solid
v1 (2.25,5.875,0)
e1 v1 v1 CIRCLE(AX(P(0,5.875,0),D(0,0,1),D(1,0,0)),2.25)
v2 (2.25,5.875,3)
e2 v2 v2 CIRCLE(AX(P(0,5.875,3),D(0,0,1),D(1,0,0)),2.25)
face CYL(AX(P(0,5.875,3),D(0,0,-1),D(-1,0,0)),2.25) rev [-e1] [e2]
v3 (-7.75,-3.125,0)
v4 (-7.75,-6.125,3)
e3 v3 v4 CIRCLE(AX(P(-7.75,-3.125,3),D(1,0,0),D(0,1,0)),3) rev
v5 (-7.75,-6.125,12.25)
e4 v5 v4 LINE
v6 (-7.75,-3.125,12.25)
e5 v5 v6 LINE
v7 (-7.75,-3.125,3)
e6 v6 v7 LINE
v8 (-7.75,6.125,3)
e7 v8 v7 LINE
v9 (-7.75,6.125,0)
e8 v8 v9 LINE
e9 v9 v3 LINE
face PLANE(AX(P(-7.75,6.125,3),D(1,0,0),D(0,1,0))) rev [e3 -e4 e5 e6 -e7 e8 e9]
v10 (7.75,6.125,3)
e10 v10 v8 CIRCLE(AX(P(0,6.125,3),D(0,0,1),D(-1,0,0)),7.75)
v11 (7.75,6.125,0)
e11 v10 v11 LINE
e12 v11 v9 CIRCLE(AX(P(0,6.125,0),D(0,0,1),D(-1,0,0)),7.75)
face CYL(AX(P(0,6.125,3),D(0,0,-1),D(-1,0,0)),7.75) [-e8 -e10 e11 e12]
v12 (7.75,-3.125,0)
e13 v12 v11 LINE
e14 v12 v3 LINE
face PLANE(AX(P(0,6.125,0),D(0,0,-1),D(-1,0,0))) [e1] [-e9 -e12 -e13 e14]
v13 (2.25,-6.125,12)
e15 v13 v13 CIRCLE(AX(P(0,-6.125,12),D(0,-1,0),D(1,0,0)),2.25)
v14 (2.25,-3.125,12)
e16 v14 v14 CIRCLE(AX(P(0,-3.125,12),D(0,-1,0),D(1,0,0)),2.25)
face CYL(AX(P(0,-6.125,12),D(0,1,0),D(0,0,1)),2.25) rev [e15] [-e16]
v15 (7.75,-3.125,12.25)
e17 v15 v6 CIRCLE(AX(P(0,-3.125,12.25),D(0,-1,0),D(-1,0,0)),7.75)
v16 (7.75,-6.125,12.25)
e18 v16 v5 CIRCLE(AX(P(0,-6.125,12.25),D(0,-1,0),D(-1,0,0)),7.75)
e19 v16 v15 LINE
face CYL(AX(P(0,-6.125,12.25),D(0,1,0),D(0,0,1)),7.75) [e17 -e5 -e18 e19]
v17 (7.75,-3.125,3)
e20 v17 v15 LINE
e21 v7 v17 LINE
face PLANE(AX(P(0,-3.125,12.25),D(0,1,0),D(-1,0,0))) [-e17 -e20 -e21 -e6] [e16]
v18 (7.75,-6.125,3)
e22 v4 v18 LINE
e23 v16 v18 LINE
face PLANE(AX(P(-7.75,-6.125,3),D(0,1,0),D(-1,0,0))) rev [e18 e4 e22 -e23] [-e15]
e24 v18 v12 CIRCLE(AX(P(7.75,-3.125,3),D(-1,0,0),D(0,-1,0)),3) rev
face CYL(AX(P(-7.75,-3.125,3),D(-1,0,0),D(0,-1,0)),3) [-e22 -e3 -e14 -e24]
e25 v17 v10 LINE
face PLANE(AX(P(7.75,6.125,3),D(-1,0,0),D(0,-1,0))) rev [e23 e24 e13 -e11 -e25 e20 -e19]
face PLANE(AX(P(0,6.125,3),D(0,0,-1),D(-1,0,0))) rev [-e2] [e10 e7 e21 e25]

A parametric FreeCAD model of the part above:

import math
import FreeCAD as App
import Part
import Sketcher
from FreeCAD import Vector
Q = App.Units.Quantity


def edges_at(feature, points):
    """Names of the edges that pass closest to the given points."""
    edges = feature.Shape.Edges
    near = lambda p: min(range(len(edges)), key=lambda i: edges[i].distToShape(Part.Vertex(*p))[0])
    return sorted({f"Edge{near(p) + 1}" for p in points})

doc = App.newDocument("Part")
body = doc.addObject("PartDesign::Body", "Body")

sketch1 = body.newObject("Sketcher::SketchObject", "Sketch")
sketch1.AttachmentSupport = (doc.getObject("XY_Plane"), [""])
sketch1.MapMode = "FlatFace"
sketch1.addGeometry([
    Part.LineSegment(Vector(-7.75, 6.125, 0), Vector(-7.75, -6.125, 0)),
    Part.LineSegment(Vector(-7.75, -6.125, 0), Vector(7.75, -6.125, 0)),
    Part.LineSegment(Vector(7.75, -6.125, 0), Vector(7.75, 6.125, 0)),
    Part.ArcOfCircle(Part.Circle(Vector(0, 6.125, 0), Vector(0, 0, 1), 7.75), math.radians(0), math.radians(180)),
    Part.Circle(Vector(0, 5.875, 0), Vector(0, 0, 1), 2.25),
], False)
sketch1.addConstraint([
    Sketcher.Constraint("Coincident", 0, 2, 1, 1),
    Sketcher.Constraint("Coincident", 1, 2, 2, 1),
    Sketcher.Constraint("Tangent", 2, 2, 3, 1),
    Sketcher.Constraint("Tangent", 3, 2, 0, 1),
    Sketcher.Constraint("Vertical", 0),
    Sketcher.Constraint("Horizontal", 1),
    Sketcher.Constraint("Vertical", 2),
    Sketcher.Constraint("Symmetric", 0, 2, 2, 2, -1, 1),
    Sketcher.Constraint("PointOnObject", 4, 3, -2),
    Sketcher.Constraint("Diameter", 4, Q("4.5 mm")),
    Sketcher.Constraint("Radius", 3, Q("7.75 mm")),
    Sketcher.Constraint("DistanceY", 0, 2, 4, 3, Q("12 mm")),
    Sketcher.Constraint("DistanceY", 0, 2, 0, 1, Q("12.25 mm")),
])
pad1 = body.newObject("PartDesign::Pad", "Pad")
pad1.Profile = sketch1
pad1.Length = 3
doc.recompute()

datumline = body.newObject("PartDesign::Line", "DatumLine")
datumline.Placement = App.Placement(Vector(0, -4.625, 1.5), App.Rotation(Vector(0, 0, 1), Vector(1, 0, 0)))
polarpattern = body.newObject("PartDesign::PolarPattern", "PolarPattern")
polarpattern.Originals = [pad1]
polarpattern.Axis = (datumline, [""])
polarpattern.Angle = 90
polarpattern.Occurrences = 2
body.Tip = polarpattern
doc.recompute()

fillet = body.newObject("PartDesign::Fillet", "Fillet")
fillet.Base = (polarpattern, edges_at(polarpattern, [(0, -6.125, 0)]))
fillet.Radius = 3

doc.recompute()
